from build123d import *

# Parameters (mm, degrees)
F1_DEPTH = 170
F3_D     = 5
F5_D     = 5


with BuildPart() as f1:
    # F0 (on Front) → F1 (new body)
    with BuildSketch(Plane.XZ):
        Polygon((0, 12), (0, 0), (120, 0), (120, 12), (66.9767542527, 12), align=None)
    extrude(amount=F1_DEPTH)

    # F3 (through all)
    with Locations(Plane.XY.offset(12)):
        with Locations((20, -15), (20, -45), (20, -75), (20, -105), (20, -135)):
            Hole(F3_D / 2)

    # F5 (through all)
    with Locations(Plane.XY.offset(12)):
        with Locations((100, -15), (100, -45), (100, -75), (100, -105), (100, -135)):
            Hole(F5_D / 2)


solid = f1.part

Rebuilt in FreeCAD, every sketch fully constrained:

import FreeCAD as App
import Part
import Sketcher
from FreeCAD import Vector
Q = App.Units.Quantity


def add_polygon(sketch, points):
    """Adds a closed chain of lines whose ends are joined by coincident constraints."""
    first, n = sketch.GeometryCount, len(points)
    for a, b in zip(points, points[1:] + points[:1]):
        sketch.addGeometry(Part.LineSegment(App.Vector(*a, 0), App.Vector(*b, 0)), False)
    for i in range(n):
        sketch.addConstraint(Sketcher.Constraint("Coincident", first + i, 2, first + (i + 1) % n, 1))

doc = App.newDocument("Part")
body = doc.addObject("PartDesign::Body", "Body")

# Sketch on XZ plane
sketch1 = body.newObject("Sketcher::SketchObject", "Sketch")
sketch1.AttachmentSupport = (doc.getObject("XZ_Plane"), [""])
sketch1.MapMode = "FlatFace"
add_polygon(sketch1, [(0, 12), (0, 0), (120, 0), (120, 12)])  # lines 0-3
sketch1.addConstraint(Sketcher.Constraint("Vertical", 0))
sketch1.addConstraint(Sketcher.Constraint("Horizontal", 1))
sketch1.addConstraint(Sketcher.Constraint("Vertical", 2))
sketch1.addConstraint(Sketcher.Constraint("Horizontal", 3))
sketch1.addConstraint(Sketcher.Constraint("Coincident", 0, 2, -1, 1))
sketch1.addConstraint(Sketcher.Constraint("DistanceX", 1, 1, 1, 2, Q("120 mm")))
sketch1.addConstraint(Sketcher.Constraint("DistanceY", 0, 2, 0, 1, Q("12 mm")))
pad1 = body.newObject("PartDesign::Pad", "Pad")
pad1.Profile = sketch1
pad1.Length = 170

# Sketch on XY plane
sketch2 = body.newObject("Sketcher::SketchObject", "Sketch001")
sketch2.AttachmentSupport = (doc.getObject("XY_Plane"), [""])
sketch2.MapMode = "FlatFace"
sketch2.AttachmentOffset = App.Placement(Vector(0, 0, 12), App.Rotation())
sketch2.addGeometry(Part.Circle(Vector(20, -15, 0), Vector(0, 0, 1), 2.5), False)
sketch2.addGeometry(Part.Circle(Vector(20, -45, 0), Vector(0, 0, 1), 2.5), False)
sketch2.addGeometry(Part.Circle(Vector(20, -75, 0), Vector(0, 0, 1), 2.5), False)
sketch2.addGeometry(Part.Circle(Vector(20, -105, 0), Vector(0, 0, 1), 2.5), False)
sketch2.addGeometry(Part.Circle(Vector(20, -135, 0), Vector(0, 0, 1), 2.5), False)
sketch2.addConstraint(Sketcher.Constraint("Equal", 0, 1))
sketch2.addConstraint(Sketcher.Constraint("Equal", 1, 2))
sketch2.addConstraint(Sketcher.Constraint("Equal", 2, 3))
sketch2.addConstraint(Sketcher.Constraint("Equal", 3, 4))
sketch2.addConstraint(Sketcher.Constraint("Vertical", 0, 3, 1, 3))
sketch2.addConstraint(Sketcher.Constraint("Vertical", 1, 3, 2, 3))
sketch2.addConstraint(Sketcher.Constraint("Vertical", 2, 3, 3, 3))
sketch2.addConstraint(Sketcher.Constraint("Vertical", 3, 3, 4, 3))
sketch2.addConstraint(Sketcher.Constraint("Diameter", 0, Q("5 mm")))
sketch2.addConstraint(Sketcher.Constraint("DistanceX", -1, 1, 0, 3, Q("20 mm")))
sketch2.addConstraint(Sketcher.Constraint("DistanceY", 0, 3, -1, 1, Q("15 mm")))
sketch2.addConstraint(Sketcher.Constraint("DistanceY", 1, 3, -1, 1, Q("45 mm")))
sketch2.addConstraint(Sketcher.Constraint("DistanceY", 2, 3, -1, 1, Q("75 mm")))
sketch2.addConstraint(Sketcher.Constraint("DistanceY", 3, 3, -1, 1, Q("105 mm")))
sketch2.addConstraint(Sketcher.Constraint("DistanceY", 4, 3, -1, 1, Q("135 mm")))
doc.recompute()
hole = body.newObject("PartDesign::Hole", "Hole")
hole.Profile = sketch2
hole.ThreadType = "None"
hole.Diameter = 5
hole.DepthType = "ThroughAll"

# Sketch on XY plane
sketch3 = body.newObject("Sketcher::SketchObject", "Sketch002")
sketch3.AttachmentSupport = (doc.getObject("XY_Plane"), [""])
sketch3.MapMode = "FlatFace"
sketch3.AttachmentOffset = App.Placement(Vector(0, 0, 12), App.Rotation())
sketch3.addGeometry(Part.Circle(Vector(100, -15, 0), Vector(0, 0, 1), 2.5), False)
sketch3.addGeometry(Part.Circle(Vector(100, -45, 0), Vector(0, 0, 1), 2.5), False)
sketch3.addGeometry(Part.Circle(Vector(100, -75, 0), Vector(0, 0, 1), 2.5), False)
sketch3.addGeometry(Part.Circle(Vector(100, -105, 0), Vector(0, 0, 1), 2.5), False)
sketch3.addGeometry(Part.Circle(Vector(100, -135, 0), Vector(0, 0, 1), 2.5), False)
sketch3.addConstraint(Sketcher.Constraint("Equal", 0, 1))
sketch3.addConstraint(Sketcher.Constraint("Equal", 1, 2))
sketch3.addConstraint(Sketcher.Constraint("Equal", 2, 3))
sketch3.addConstraint(Sketcher.Constraint("Equal", 3, 4))
sketch3.addConstraint(Sketcher.Constraint("Vertical", 0, 3, 1, 3))
sketch3.addConstraint(Sketcher.Constraint("Vertical", 1, 3, 2, 3))
sketch3.addConstraint(Sketcher.Constraint("Vertical", 2, 3, 3, 3))
sketch3.addConstraint(Sketcher.Constraint("Vertical", 3, 3, 4, 3))
sketch3.addConstraint(Sketcher.Constraint("Diameter", 0, Q("5 mm")))
sketch3.addConstraint(Sketcher.Constraint("DistanceX", -1, 1, 0, 3, Q("100 mm")))
sketch3.addConstraint(Sketcher.Constraint("DistanceY", 0, 3, -1, 1, Q("15 mm")))
sketch3.addConstraint(Sketcher.Constraint("DistanceY", 1, 3, -1, 1, Q("45 mm")))
sketch3.addConstraint(Sketcher.Constraint("DistanceY", 2, 3, -1, 1, Q("75 mm")))
sketch3.addConstraint(Sketcher.Constraint("DistanceY", 3, 3, -1, 1, Q("105 mm")))
sketch3.addConstraint(Sketcher.Constraint("DistanceY", 4, 3, -1, 1, Q("135 mm")))
doc.recompute()
hole2 = body.newObject("PartDesign::Hole", "Hole001")
hole2.Profile = sketch3
hole2.ThreadType = "None"
hole2.Diameter = 5
hole2.DepthType = "ThroughAll"

doc.recompute()
